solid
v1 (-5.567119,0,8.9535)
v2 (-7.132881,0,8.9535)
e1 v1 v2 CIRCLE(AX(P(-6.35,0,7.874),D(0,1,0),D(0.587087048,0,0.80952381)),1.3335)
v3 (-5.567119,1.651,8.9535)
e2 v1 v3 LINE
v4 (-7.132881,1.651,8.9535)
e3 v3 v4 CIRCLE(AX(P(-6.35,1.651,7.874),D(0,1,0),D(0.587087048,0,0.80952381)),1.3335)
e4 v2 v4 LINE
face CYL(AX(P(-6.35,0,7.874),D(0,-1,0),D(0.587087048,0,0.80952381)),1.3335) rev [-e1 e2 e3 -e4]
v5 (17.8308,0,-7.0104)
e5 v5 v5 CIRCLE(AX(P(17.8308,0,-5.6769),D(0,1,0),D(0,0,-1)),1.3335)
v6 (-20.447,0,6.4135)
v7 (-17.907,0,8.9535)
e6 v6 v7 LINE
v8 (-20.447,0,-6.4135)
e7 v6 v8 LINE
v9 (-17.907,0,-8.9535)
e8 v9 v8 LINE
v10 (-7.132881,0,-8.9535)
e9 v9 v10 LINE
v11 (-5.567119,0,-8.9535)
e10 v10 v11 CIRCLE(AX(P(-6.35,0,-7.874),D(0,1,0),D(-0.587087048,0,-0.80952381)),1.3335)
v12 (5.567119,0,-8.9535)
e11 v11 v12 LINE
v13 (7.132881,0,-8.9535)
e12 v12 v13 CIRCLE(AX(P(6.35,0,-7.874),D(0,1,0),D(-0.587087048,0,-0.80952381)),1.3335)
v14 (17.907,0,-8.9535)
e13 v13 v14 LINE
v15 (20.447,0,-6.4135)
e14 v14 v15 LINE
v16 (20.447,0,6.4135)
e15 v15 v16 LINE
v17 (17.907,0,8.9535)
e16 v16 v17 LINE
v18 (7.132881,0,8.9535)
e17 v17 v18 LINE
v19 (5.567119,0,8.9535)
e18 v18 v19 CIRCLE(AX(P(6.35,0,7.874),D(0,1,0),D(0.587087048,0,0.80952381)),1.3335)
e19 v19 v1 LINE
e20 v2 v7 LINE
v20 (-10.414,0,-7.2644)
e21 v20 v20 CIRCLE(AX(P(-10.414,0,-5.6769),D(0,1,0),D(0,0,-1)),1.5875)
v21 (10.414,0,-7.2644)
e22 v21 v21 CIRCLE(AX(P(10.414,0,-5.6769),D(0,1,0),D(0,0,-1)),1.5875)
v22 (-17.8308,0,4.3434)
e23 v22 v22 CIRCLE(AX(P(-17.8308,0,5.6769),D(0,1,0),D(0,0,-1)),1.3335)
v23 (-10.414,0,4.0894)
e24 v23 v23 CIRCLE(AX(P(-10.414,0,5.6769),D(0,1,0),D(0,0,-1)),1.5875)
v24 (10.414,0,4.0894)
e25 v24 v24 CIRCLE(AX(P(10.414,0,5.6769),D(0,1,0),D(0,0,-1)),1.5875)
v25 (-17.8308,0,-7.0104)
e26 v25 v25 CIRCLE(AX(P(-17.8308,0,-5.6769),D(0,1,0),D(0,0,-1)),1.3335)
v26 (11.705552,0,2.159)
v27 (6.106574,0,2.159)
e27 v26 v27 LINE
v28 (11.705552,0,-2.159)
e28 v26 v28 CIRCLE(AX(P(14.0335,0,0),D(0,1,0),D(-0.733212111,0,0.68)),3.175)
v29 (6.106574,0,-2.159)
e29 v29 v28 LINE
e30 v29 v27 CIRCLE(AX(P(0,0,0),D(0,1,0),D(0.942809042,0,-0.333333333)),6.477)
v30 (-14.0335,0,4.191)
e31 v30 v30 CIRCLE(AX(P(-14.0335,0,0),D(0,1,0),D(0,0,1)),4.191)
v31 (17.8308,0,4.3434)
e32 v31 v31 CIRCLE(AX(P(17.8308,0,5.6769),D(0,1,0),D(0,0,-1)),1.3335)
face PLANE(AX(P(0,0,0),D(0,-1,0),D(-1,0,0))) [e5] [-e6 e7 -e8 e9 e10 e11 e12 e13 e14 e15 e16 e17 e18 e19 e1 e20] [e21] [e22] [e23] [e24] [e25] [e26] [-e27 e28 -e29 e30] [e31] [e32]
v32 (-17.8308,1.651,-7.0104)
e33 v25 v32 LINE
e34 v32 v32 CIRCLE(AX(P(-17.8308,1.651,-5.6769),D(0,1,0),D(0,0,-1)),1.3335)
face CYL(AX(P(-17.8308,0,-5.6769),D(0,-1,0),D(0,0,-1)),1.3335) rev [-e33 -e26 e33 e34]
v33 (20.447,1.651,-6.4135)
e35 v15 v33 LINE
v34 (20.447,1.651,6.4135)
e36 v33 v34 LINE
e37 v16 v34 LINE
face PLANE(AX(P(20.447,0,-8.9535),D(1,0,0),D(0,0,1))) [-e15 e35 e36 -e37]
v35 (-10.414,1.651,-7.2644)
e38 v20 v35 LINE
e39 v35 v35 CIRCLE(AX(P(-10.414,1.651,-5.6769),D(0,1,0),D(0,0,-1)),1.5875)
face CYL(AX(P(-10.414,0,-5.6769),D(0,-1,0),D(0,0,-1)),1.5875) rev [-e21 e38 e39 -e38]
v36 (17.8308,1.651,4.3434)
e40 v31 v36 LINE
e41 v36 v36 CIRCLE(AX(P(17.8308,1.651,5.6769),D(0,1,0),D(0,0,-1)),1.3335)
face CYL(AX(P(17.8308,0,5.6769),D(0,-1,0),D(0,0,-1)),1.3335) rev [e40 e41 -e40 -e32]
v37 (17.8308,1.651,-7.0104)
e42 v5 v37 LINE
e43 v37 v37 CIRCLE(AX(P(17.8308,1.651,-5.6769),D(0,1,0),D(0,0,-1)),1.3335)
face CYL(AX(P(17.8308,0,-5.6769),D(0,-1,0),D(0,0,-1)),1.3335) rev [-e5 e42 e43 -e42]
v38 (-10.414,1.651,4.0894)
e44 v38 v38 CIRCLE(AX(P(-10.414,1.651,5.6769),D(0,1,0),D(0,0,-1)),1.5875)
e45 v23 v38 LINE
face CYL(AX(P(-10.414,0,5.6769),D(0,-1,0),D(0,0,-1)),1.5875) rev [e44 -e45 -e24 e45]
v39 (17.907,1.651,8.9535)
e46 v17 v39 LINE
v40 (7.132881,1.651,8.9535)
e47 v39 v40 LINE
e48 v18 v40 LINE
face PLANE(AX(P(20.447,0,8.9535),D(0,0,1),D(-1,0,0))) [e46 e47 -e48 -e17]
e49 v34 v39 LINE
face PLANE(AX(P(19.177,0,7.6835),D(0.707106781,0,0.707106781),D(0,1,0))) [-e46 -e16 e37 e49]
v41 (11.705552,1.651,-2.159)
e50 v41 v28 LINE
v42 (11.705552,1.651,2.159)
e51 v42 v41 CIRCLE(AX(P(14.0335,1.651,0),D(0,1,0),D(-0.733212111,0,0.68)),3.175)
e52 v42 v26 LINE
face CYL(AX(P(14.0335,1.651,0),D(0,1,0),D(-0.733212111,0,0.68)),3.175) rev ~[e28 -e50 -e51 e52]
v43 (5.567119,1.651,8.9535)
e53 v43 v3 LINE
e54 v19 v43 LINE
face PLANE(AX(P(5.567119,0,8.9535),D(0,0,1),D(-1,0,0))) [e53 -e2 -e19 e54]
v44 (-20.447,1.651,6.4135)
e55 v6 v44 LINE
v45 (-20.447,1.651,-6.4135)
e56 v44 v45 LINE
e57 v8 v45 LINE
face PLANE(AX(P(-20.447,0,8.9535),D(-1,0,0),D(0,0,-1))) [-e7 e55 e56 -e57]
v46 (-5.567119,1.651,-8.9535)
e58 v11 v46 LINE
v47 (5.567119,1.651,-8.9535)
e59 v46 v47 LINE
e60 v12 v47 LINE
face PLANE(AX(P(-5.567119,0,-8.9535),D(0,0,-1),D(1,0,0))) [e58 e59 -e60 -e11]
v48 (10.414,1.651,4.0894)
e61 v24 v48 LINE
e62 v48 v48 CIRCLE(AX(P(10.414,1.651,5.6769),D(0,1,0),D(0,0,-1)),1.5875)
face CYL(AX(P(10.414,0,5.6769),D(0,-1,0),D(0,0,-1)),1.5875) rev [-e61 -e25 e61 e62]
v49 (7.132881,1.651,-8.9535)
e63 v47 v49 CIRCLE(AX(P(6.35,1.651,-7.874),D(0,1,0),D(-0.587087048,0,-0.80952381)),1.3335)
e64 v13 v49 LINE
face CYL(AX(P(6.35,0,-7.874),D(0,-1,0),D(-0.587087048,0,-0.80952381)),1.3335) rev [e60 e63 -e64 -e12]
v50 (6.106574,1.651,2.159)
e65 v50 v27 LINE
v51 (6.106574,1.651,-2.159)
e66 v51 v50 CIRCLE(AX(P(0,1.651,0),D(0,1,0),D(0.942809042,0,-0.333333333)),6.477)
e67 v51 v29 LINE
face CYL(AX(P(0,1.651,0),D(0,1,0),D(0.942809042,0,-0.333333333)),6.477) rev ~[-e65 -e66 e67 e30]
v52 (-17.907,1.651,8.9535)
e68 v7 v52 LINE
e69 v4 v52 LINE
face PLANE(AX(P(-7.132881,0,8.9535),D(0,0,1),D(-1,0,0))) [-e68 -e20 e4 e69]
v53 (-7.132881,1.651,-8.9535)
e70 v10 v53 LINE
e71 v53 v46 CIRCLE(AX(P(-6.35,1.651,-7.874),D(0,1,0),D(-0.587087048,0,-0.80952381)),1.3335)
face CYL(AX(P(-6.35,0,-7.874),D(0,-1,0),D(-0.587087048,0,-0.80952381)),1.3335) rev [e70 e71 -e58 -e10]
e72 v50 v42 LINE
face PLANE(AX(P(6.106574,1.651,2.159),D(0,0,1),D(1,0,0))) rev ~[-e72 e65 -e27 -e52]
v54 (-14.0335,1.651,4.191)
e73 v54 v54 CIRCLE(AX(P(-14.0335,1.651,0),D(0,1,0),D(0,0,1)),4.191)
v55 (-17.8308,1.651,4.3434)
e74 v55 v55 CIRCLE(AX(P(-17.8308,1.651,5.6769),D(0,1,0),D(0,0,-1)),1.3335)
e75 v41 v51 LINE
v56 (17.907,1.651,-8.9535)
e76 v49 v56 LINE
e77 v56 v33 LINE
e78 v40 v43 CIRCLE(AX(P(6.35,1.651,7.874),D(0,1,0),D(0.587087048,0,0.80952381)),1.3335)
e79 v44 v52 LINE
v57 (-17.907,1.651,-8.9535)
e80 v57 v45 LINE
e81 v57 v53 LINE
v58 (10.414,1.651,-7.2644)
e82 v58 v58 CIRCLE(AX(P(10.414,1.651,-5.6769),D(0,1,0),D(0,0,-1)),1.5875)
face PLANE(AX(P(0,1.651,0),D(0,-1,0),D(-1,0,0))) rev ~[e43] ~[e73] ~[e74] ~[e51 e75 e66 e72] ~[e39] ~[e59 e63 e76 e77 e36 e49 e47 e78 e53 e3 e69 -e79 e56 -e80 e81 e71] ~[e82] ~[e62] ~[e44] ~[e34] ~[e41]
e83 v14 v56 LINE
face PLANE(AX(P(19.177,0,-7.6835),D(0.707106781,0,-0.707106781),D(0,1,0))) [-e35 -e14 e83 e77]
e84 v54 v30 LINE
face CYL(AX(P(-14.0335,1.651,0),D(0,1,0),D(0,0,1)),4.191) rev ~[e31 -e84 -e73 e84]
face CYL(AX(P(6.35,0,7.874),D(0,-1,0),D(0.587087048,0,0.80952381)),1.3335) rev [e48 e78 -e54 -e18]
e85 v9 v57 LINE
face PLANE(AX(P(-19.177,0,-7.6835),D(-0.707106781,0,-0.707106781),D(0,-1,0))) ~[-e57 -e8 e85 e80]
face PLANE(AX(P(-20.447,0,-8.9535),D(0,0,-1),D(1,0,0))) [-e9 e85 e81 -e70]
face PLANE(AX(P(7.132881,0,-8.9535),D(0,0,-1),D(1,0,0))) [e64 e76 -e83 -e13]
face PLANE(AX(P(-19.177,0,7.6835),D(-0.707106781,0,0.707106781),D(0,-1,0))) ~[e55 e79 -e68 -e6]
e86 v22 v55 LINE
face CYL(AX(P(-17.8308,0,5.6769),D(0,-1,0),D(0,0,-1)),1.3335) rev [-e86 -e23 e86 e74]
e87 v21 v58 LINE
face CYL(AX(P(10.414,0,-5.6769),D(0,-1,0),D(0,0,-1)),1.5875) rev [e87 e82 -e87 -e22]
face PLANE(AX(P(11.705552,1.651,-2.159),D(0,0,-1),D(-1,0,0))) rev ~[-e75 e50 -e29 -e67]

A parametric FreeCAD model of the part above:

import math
import FreeCAD as App
import Part
import Sketcher
from FreeCAD import Vector
Q = App.Units.Quantity


def edges_at(feature, points):
    """Names of the edges that pass closest to the given points."""
    edges = feature.Shape.Edges
    near = lambda p: min(range(len(edges)), key=lambda i: edges[i].distToShape(Part.Vertex(*p))[0])
    return sorted({f"Edge{near(p) + 1}" for p in points})

doc = App.newDocument("Part")
body = doc.addObject("PartDesign::Body", "Body")

# Sketch on XZ plane
sketch1 = body.newObject("Sketcher::SketchObject", "Sketch")
sketch1.AttachmentSupport = (doc.getObject("XZ_Plane"), [""])
sketch1.MapMode = "FlatFace"
sketch1.addGeometry(Part.LineSegment(Vector(5.6, -9, 0), Vector(-5.6, -9, 0)), False)
sketch1.addGeometry(Part.ArcOfCircle(Part.Circle(Vector(-6.3, -7.9, 0), Vector(0, 0, 1), 1.3), math.radians(-54), math.radians(234)), False)
sketch1.addGeometry(Part.LineSegment(Vector(-7.1, -9, 0), Vector(-20.4, -9, 0)), False)
sketch1.addGeometry(Part.LineSegment(Vector(-20.4, -9, 0), Vector(-20.4, 9, 0)), False)
sketch1.addGeometry(Part.LineSegment(Vector(-20.4, 9, 0), Vector(-7.1, 9, 0)), False)
sketch1.addGeometry(Part.ArcOfCircle(Part.Circle(Vector(-6.3, 7.9, 0), Vector(0, 0, 1), 1.3), math.radians(126), math.radians(414)), False)
sketch1.addGeometry(Part.LineSegment(Vector(-5.6, 9, 0), Vector(5.6, 9, 0)), False)
sketch1.addGeometry(Part.ArcOfCircle(Part.Circle(Vector(6.3, 7.9, 0), Vector(0, 0, 1), 1.3), math.radians(126), math.radians(414)), False)
sketch1.addGeometry(Part.LineSegment(Vector(7.1, 9, 0), Vector(20.4, 9, 0)), False)
sketch1.addGeometry(Part.LineSegment(Vector(20.4, 9, 0), Vector(20.4, -9, 0)), False)
sketch1.addGeometry(Part.LineSegment(Vector(20.4, -9, 0), Vector(7.1, -9, 0)), False)
sketch1.addGeometry(Part.ArcOfCircle(Part.Circle(Vector(6.3, -7.9, 0), Vector(0, 0, 1), 1.3), math.radians(-54), math.radians(234)), False)
sketch1.addGeometry(Part.Circle(Vector(17.8, 5.7, 0), Vector(0, 0, 1), 1.3), False)
sketch1.addGeometry(Part.Circle(Vector(10.4, 5.7, 0), Vector(0, 0, 1), 1.6), False)
sketch1.addGeometry(Part.Circle(Vector(-10.4, 5.7, 0), Vector(0, 0, 1), 1.6), False)
sketch1.addGeometry(Part.Circle(Vector(-17.8, 5.7, 0), Vector(0, 0, 1), 1.3), False)
sketch1.addGeometry(Part.Circle(Vector(17.8, -5.7, 0), Vector(0, 0, 1), 1.3), False)
sketch1.addGeometry(Part.Circle(Vector(10.4, -5.7, 0), Vector(0, 0, 1), 1.6), False)
sketch1.addGeometry(Part.Circle(Vector(-10.4, -5.7, 0), Vector(0, 0, 1), 1.6), False)
sketch1.addGeometry(Part.Circle(Vector(-17.8, -5.7, 0), Vector(0, 0, 1), 1.3), False)
sketch1.addConstraint(Sketcher.Constraint("Coincident", 0, 2, 1, 1))
sketch1.addConstraint(Sketcher.Constraint("Coincident", 1, 2, 2, 1))
sketch1.addConstraint(Sketcher.Constraint("Coincident", 2, 2, 3, 1))
sketch1.addConstraint(Sketcher.Constraint("Coincident", 3, 2, 4, 1))
sketch1.addConstraint(Sketcher.Constraint("Coincident", 4, 2, 5, 1))
sketch1.addConstraint(Sketcher.Constraint("Coincident", 5, 2, 6, 1))
sketch1.addConstraint(Sketcher.Constraint("Coincident", 6, 2, 7, 1))
sketch1.addConstraint(Sketcher.Constraint("Coincident", 7, 2, 8, 1))
sketch1.addConstraint(Sketcher.Constraint("Coincident", 8, 2, 9, 1))
sketch1.addConstraint(Sketcher.Constraint("Coincident", 9, 2, 10, 1))
sketch1.addConstraint(Sketcher.Constraint("Coincident", 10, 2, 11, 1))
sketch1.addConstraint(Sketcher.Constraint("Coincident", 11, 2, 0, 1))
sketch1.addConstraint(Sketcher.Constraint("Horizontal", 0))
sketch1.addConstraint(Sketcher.Constraint("Horizontal", 2))
sketch1.addConstraint(Sketcher.Constraint("Vertical", 3))
sketch1.addConstraint(Sketcher.Constraint("Horizontal", 4))
sketch1.addConstraint(Sketcher.Constraint("Horizontal", 6))
sketch1.addConstraint(Sketcher.Constraint("Horizontal", 8))
sketch1.addConstraint(Sketcher.Constraint("Vertical", 9))
sketch1.addConstraint(Sketcher.Constraint("Horizontal", 10))
sketch1.addConstraint(Sketcher.Constraint("Equal", 1, 5))
sketch1.addConstraint(Sketcher.Constraint("Equal", 5, 7))
sketch1.addConstraint(Sketcher.Constraint("Equal", 7, 11))
sketch1.addConstraint(Sketcher.Constraint("Equal", 11, 12))
sketch1.addConstraint(Sketcher.Constraint("Equal", 13, 14))
sketch1.addConstraint(Sketcher.Constraint("Equal", 12, 15))
sketch1.addConstraint(Sketcher.Constraint("Equal", 15, 16))
sketch1.addConstraint(Sketcher.Constraint("Equal", 14, 17))
sketch1.addConstraint(Sketcher.Constraint("Equal", 17, 18))
sketch1.addConstraint(Sketcher.Constraint("Equal", 16, 19))
sketch1.addConstraint(Sketcher.Constraint("Symmetric", 1, 3, 7, 3, -1, 1))
sketch1.addConstraint(Sketcher.Constraint("Symmetric", 5, 3, 11, 3, -1, 1))
sketch1.addConstraint(Sketcher.Constraint("Symmetric", 15, 3, 16, 3, -1, 1))
sketch1.addConstraint(Sketcher.Constraint("Symmetric", 14, 3, 17, 3, -1, 1))
sketch1.addConstraint(Sketcher.Constraint("Symmetric", 13, 3, 18, 3, -1, 1))
sketch1.addConstraint(Sketcher.Constraint("Symmetric", 12, 3, 19, 3, -1, 1))
sketch1.addConstraint(Sketcher.Constraint("Symmetric", 2, 2, 8, 2, -1, 1))
sketch1.addConstraint(Sketcher.Constraint("Symmetric", 5, 3, 7, 3, -2))
sketch1.addConstraint(Sketcher.Constraint("Symmetric", 13, 3, 14, 3, -2))
sketch1.addConstraint(Sketcher.Constraint("Symmetric", 12, 3, 15, 3, -2))
sketch1.addConstraint(Sketcher.Constraint("Horizontal", 12, 3, 13, 3))
sketch1.addConstraint(Sketcher.Constraint("Horizontal", 0, 2, 1, 2))
sketch1.addConstraint(Sketcher.Constraint("Horizontal", 4, 2, 5, 2))
sketch1.addConstraint(Sketcher.Constraint("Horizontal", 6, 2, 7, 2))
sketch1.addConstraint(Sketcher.Constraint("Horizontal", 2, 2, 9, 2))
sketch1.addConstraint(Sketcher.Constraint("Diameter", 12, Q("0.105 in")))
sketch1.addConstraint(Sketcher.Constraint("Diameter", 13, Q("0.125 in")))
sketch1.addConstraint(Sketcher.Constraint("DistanceX", 5, 3, 7, 3, Q("0.5 in")))
sketch1.addConstraint(Sketcher.Constraint("DistanceY", 3, 1, 3, 2, Q("0.705 in")))
sketch1.addConstraint(Sketcher.Constraint("DistanceY", 1, 3, -1, 1, Q("0.31 in")))
sketch1.addConstraint(Sketcher.Constraint("DistanceX", -1, 1, 13, 3, Q("0.41 in")))
sketch1.addConstraint(Sketcher.Constraint("DistanceX", -1, 1, 12, 3, Q("0.702 in")))
sketch1.addConstraint(Sketcher.Constraint("DistanceX", 2, 2, -1, 1, Q("0.805 in")))
sketch1.addConstraint(Sketcher.Constraint("DistanceY", 16, 3, 12, 3, Q("0.447 in")))
pad1 = body.newObject("PartDesign::Pad", "Pad")
pad1.Profile = sketch1
pad1.Length = Q("0.065 in")
pad1.Reversed = True
doc.recompute()

chamfer = body.newObject("PartDesign::Chamfer", "Chamfer")
chamfer.Base = (pad1, edges_at(pad1, [
    (20.447, 0.826, -8.954),
    (20.447, 0.826, 8.954),
    (-20.447, 0.826, 8.954),
    (-20.447, 0.826, -8.954),
]))
chamfer.Size = Q("0.1 in")

# Sketch on XZ plane
sketch2 = body.newObject("Sketcher::SketchObject", "Sketch001")
sketch2.AttachmentSupport = (doc.getObject("XZ_Plane"), [""])
sketch2.MapMode = "FlatFace"
sketch2.AttachmentOffset = App.Placement(Vector(0, 0, -0.065 * 25.4), App.Rotation())
sketch2.addGeometry(Part.Circle(Vector(-14, 0, 0), Vector(0, 0, 1), 4.2), False)
sketch2.addGeometry(Part.LineSegment(Vector(6.1, 2.2, 0), Vector(11.7, 2.2, 0)), False)
sketch2.addGeometry(Part.ArcOfCircle(Part.Circle(Vector(14, 0, 0), Vector(0, 0, 1), 3.2), math.radians(-137), math.radians(137)), False)
sketch2.addGeometry(Part.LineSegment(Vector(11.7, -2.2, 0), Vector(6.1, -2.2, 0)), False)
sketch2.addGeometry(Part.ArcOfCircle(Part.Circle(Vector(0, 0, 0), Vector(0, 0, 1), 6.5), math.radians(19), math.radians(341)), False)
sketch2.addConstraint(Sketcher.Constraint("Coincident", 1, 2, 2, 2))
sketch2.addConstraint(Sketcher.Constraint("Coincident", 2, 1, 3, 1))
sketch2.addConstraint(Sketcher.Constraint("Coincident", 3, 2, 4, 2))
sketch2.addConstraint(Sketcher.Constraint("Coincident", 4, 1, 1, 1))
sketch2.addConstraint(Sketcher.Constraint("Horizontal", 1))
sketch2.addConstraint(Sketcher.Constraint("Horizontal", 3))
sketch2.addConstraint(Sketcher.Constraint("Coincident", 4, 3, -1, 1))
sketch2.addConstraint(Sketcher.Constraint("Symmetric", 0, 3, 2, 3, -1, 1))
sketch2.addConstraint(Sketcher.Constraint("Symmetric", 1, 2, 2, 1, -1))
sketch2.addConstraint(Sketcher.Constraint("Diameter", 0, Q("0.33 in")))
sketch2.addConstraint(Sketcher.Constraint("Radius", 2, Q("0.125 in")))
sketch2.addConstraint(Sketcher.Constraint("Radius", 4, Q("0.255 in")))
sketch2.addConstraint(Sketcher.Constraint("DistanceY", 2, 1, 1, 2, Q("0.17 in")))
sketch2.addConstraint(Sketcher.Constraint("DistanceX", 0, 3, 2, 3, Q("1.105 in")))
pocket1 = body.newObject("PartDesign::Pocket", "Pocket")
pocket1.Profile = sketch2
pocket1.Type = "ThroughAll"
pocket1.Reversed = True

doc.recompute()
